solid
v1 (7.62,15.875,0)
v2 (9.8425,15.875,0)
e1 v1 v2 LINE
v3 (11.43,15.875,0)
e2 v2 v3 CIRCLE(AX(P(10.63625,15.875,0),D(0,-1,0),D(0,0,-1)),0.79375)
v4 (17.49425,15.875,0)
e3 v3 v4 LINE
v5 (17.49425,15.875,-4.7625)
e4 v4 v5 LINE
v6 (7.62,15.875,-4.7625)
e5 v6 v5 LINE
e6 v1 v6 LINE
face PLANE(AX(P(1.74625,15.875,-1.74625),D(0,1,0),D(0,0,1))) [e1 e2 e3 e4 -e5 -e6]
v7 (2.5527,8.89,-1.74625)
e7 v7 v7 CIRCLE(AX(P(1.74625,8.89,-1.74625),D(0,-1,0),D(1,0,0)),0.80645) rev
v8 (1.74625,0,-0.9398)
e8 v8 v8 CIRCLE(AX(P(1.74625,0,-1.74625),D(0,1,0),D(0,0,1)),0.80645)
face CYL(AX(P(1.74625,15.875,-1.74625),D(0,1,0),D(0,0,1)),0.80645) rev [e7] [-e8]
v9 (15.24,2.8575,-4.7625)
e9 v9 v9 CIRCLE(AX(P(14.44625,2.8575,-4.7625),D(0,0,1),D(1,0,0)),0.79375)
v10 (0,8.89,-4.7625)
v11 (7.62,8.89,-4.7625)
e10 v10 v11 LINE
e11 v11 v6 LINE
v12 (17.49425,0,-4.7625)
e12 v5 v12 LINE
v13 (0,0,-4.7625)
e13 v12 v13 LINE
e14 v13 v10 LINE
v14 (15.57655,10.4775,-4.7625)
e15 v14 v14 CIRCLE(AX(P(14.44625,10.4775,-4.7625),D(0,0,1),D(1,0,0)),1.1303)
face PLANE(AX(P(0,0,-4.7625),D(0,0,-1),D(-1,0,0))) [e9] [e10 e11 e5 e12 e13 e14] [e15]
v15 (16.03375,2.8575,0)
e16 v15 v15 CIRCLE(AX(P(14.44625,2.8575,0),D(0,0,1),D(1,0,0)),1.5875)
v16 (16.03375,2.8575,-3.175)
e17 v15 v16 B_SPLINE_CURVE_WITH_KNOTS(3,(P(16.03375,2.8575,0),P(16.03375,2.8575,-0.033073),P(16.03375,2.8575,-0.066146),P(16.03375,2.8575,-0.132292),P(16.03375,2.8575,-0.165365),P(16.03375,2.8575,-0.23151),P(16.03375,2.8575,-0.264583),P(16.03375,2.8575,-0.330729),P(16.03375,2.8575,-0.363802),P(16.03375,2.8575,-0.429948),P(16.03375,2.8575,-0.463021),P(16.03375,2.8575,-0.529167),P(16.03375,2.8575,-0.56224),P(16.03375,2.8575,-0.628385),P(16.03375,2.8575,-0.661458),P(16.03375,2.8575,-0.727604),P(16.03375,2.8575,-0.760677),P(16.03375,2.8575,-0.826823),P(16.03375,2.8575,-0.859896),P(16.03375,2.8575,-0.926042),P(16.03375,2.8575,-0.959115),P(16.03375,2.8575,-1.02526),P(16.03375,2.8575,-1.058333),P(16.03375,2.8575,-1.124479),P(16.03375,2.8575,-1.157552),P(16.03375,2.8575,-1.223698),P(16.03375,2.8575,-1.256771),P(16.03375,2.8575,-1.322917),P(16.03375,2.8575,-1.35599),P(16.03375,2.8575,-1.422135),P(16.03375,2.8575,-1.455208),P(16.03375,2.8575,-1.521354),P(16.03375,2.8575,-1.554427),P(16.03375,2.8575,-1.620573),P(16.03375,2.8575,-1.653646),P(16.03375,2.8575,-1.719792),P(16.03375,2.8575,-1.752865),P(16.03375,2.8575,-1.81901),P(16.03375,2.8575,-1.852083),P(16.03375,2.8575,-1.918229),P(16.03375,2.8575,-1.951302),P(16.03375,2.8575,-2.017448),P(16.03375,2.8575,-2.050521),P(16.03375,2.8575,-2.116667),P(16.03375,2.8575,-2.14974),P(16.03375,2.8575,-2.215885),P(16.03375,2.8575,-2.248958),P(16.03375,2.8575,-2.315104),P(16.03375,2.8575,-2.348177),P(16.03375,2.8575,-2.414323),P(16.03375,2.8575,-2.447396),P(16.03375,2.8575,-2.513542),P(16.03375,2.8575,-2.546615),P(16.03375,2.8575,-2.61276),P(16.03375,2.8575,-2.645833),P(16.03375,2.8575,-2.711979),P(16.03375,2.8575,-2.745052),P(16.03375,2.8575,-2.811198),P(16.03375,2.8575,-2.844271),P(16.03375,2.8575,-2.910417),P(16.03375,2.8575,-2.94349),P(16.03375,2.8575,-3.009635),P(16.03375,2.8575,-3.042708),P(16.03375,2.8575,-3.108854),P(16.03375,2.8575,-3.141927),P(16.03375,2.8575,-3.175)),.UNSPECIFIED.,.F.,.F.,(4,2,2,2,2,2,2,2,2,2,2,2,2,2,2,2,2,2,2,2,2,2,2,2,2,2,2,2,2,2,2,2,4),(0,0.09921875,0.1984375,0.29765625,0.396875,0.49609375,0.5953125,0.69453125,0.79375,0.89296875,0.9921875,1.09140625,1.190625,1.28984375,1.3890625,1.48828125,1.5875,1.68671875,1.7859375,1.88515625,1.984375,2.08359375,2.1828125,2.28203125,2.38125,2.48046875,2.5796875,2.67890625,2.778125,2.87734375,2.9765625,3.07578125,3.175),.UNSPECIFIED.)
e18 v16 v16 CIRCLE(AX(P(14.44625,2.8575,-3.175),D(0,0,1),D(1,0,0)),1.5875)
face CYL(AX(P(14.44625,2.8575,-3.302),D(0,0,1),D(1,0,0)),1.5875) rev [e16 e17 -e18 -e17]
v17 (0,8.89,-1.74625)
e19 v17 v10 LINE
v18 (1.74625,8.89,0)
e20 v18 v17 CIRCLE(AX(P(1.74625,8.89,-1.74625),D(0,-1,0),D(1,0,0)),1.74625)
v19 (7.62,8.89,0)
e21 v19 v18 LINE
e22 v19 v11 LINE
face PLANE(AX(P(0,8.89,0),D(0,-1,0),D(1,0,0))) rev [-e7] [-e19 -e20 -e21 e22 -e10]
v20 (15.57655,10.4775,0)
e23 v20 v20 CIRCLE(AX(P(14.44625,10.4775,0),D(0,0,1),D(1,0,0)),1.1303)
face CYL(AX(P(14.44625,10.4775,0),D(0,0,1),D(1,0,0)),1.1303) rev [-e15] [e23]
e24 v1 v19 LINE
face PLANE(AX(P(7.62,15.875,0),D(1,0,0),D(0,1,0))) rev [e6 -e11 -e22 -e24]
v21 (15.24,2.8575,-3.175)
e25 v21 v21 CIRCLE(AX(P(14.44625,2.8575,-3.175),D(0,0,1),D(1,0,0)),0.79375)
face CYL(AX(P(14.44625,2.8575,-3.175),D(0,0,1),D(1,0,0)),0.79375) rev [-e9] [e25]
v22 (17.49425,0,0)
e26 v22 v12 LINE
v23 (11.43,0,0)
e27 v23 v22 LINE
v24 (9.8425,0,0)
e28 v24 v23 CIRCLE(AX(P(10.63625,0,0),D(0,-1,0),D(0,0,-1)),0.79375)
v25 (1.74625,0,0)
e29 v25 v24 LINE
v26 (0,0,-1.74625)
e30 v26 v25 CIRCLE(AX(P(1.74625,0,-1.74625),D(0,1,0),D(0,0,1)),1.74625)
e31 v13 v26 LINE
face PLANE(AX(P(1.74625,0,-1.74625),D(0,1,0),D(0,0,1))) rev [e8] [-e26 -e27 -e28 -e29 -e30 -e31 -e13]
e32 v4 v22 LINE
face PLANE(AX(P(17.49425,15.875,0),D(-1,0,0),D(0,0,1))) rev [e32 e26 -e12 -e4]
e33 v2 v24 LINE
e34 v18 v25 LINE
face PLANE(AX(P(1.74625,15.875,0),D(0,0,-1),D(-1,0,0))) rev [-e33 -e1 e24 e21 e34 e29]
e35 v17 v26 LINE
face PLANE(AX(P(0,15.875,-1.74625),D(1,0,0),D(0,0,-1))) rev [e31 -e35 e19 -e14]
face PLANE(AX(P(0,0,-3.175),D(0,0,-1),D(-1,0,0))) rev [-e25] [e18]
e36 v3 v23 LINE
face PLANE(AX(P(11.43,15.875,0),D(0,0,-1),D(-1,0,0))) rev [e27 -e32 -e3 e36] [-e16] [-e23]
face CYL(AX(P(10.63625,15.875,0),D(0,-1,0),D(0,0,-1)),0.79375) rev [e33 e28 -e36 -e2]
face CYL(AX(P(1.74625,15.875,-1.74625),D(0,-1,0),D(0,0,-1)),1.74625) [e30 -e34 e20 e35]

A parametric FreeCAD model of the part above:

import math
import FreeCAD as App
import Part
import Sketcher
from FreeCAD import Vector
Q = App.Units.Quantity


def add_polygon(sketch, points):
    """Adds a closed chain of lines whose ends are joined by coincident constraints."""
    first, n = sketch.GeometryCount, len(points)
    for a, b in zip(points, points[1:] + points[:1]):
        sketch.addGeometry(Part.LineSegment(App.Vector(*a, 0), App.Vector(*b, 0)), False)
    for i in range(n):
        sketch.addConstraint(Sketcher.Constraint("Coincident", first + i, 2, first + (i + 1) % n, 1))

doc = App.newDocument("Part")
params = doc.addObject("Spreadsheet::Sheet", "Params")
for row, (alias, value) in enumerate([
    ("sketch1_radius", "0.03125 in"),
    ("sketch1_height", "0.125 in"),
    ("pad1_length", "0.625 in"),
    ("hole_diameter", "0.0635 in"),
    ("sketch3_width", "0.3 in"),
    ("sketch3_height", "0.275 in"),
    ("sketch4_diameter", "0.125 in"),
    ("pocket2_length", "0.13 in"),
    ("sketch5_width", "0.3 in"),
    ("sketch5_height", "0.35 in"),
    ("sketch5_height2", "0.275 in"),
    ("pad2_length", "0.0625 in"),
    ("sketch6_diameter", "0.089 in"),
    ("hole2_diameter", "0.089 in"),
    ("sketch7_diameter", "0.0625 in"),
    ("hole3_diameter", "0.0625 in"),
], start=1):
    params.set(f"A{row}", alias)
    params.set(f"B{row}", "=" + value)
    params.setAlias(f"B{row}", alias)

body = doc.addObject("PartDesign::Body", "Body")

# Sketch on XZ plane
sketch1 = body.newObject("Sketcher::SketchObject", "Sketch")
sketch1.AttachmentSupport = (doc.getObject("XZ_Plane"), [""])
sketch1.MapMode = "FlatFace"
sketch1.addGeometry(Part.LineSegment(Vector(0, -3.2, 0), Vector(0, -1.7, 0)), False)
sketch1.addGeometry(Part.ArcOfCircle(Part.Circle(Vector(1.7, -1.7, 0), Vector(0, 0, 1), 1.7), math.radians(90), math.radians(180)), False)
sketch1.addGeometry(Part.LineSegment(Vector(1.7, 0, 0), Vector(9.8, 0, 0)), False)
sketch1.addGeometry(Part.ArcOfCircle(Part.Circle(Vector(10.6, 0, 0), Vector(0, 0, 1), 0.8), math.radians(180), math.radians(360)), False)
sketch1.addGeometry(Part.LineSegment(Vector(11.4, 0, 0), Vector(17.5, 0, 0)), False)
sketch1.addGeometry(Part.LineSegment(Vector(17.5, 0, 0), Vector(17.5, -3.2, 0)), False)
sketch1.addGeometry(Part.LineSegment(Vector(17.5, -3.2, 0), Vector(0, -3.2, 0)), False)
sketch1.addConstraint(Sketcher.Constraint("Tangent", 0, 2, 1, 2))
sketch1.addConstraint(Sketcher.Constraint("Tangent", 1, 1, 2, 1))
sketch1.addConstraint(Sketcher.Constraint("Coincident", 2, 2, 3, 1))
sketch1.addConstraint(Sketcher.Constraint("Coincident", 3, 2, 4, 1))
sketch1.addConstraint(Sketcher.Constraint("Coincident", 4, 2, 5, 1))
sketch1.addConstraint(Sketcher.Constraint("Coincident", 5, 2, 6, 1))
sketch1.addConstraint(Sketcher.Constraint("Coincident", 6, 2, 0, 1))
sketch1.addConstraint(Sketcher.Constraint("Vertical", 0))
sketch1.addConstraint(Sketcher.Constraint("Horizontal", 2))
sketch1.addConstraint(Sketcher.Constraint("Horizontal", 4))
sketch1.addConstraint(Sketcher.Constraint("Vertical", 5))
sketch1.addConstraint(Sketcher.Constraint("Horizontal", 6))
sketch1.addConstraint(Sketcher.Constraint("PointOnObject", 3, 3, -1))
sketch1.addConstraint(Sketcher.Constraint("PointOnObject", 0, 2, -2))
sketch1.addConstraint(Sketcher.Constraint("PointOnObject", 1, 1, -1))
sketch1.addConstraint(Sketcher.Constraint("PointOnObject", 3, 2, -1))
sketch1.addConstraint(Sketcher.Constraint("Radius", 3, Q("0.03125 in")))
sketch1.addConstraint(Sketcher.Constraint("DistanceY", 5, 2, 5, 1, Q("0.125 in")))
sketch1.addConstraint(Sketcher.Constraint("DistanceX", -1, 1, 3, 2, Q("0.45 in")))
sketch1.addConstraint(Sketcher.Constraint("DistanceX", 1, 3, 3, 3, Q("0.35 in")))
sketch1.addConstraint(Sketcher.Constraint("DistanceX", 3, 3, 4, 2, Q("0.27 in")))
sketch1.setExpression("Constraints[16]", "Params.sketch1_radius")
sketch1.setExpression("Constraints[17]", "Params.sketch1_height")
pad1 = body.newObject("PartDesign::Pad", "Pad")
pad1.Profile = sketch1
pad1.setExpression("Length", "Params.pad1_length")
pad1.Reversed = True

# Sketch on XZ plane
sketch2 = body.newObject("Sketcher::SketchObject", "Sketch001")
sketch2.AttachmentSupport = (doc.getObject("XZ_Plane"), [""])
sketch2.MapMode = "FlatFace"
sketch2.AttachmentOffset = App.Placement(Vector(0, 0, -0.625 * 25.4), App.Rotation())
sketch2.addGeometry(Part.Circle(Vector(1.7, -1.7, 0), Vector(0, 0, 1), 0.8), False)
sketch2.addConstraint(Sketcher.Constraint("Diameter", 0, Q("0.0635 in")))
sketch2.addConstraint(Sketcher.Constraint("DistanceX", -1, 1, 0, 3, 1.74625))
sketch2.addConstraint(Sketcher.Constraint("DistanceY", 0, 3, -1, 1, 1.74625))
doc.recompute()
hole = body.newObject("PartDesign::Hole", "Hole")
hole.Profile = sketch2
hole.ThreadType = "None"
hole.setExpression("Diameter", "Params.hole_diameter")
hole.DepthType = "ThroughAll"
hole.Reversed = True

# Sketch on XY plane
sketch3 = body.newObject("Sketcher::SketchObject", "Sketch002")
sketch3.AttachmentSupport = (doc.getObject("XY_Plane"), [""])
sketch3.MapMode = "FlatFace"
sketch3.AttachmentOffset = App.Placement(Vector(0, 0, -0.125 * 25.4), App.Rotation())
add_polygon(sketch3, [(8, 16), (8, 9), (0, 9), (0, 16)])  # lines 0-3
sketch3.addConstraint(Sketcher.Constraint("Vertical", 0))
sketch3.addConstraint(Sketcher.Constraint("Horizontal", 1))
sketch3.addConstraint(Sketcher.Constraint("Vertical", 2))
sketch3.addConstraint(Sketcher.Constraint("Horizontal", 3))
sketch3.addConstraint(Sketcher.Constraint("PointOnObject", 1, 2, -2))
sketch3.addConstraint(Sketcher.Constraint("DistanceX", 1, 2, 1, 1, Q("0.3 in")))
sketch3.addConstraint(Sketcher.Constraint("DistanceY", 0, 2, 0, 1, Q("0.275 in")))
sketch3.addConstraint(Sketcher.Constraint("DistanceY", -1, 1, 0, 2, Q("0.35 in")))
sketch3.setExpression("Constraints[9]", "Params.sketch3_width")
sketch3.setExpression("Constraints[10]", "Params.sketch3_height")
pocket1 = body.newObject("PartDesign::Pocket", "Pocket")
pocket1.Profile = sketch3
pocket1.Type = "ThroughAll"
pocket1.Reversed = True

# Sketch on XY plane
sketch4 = body.newObject("Sketcher::SketchObject", "Sketch003")
sketch4.AttachmentSupport = (doc.getObject("XY_Plane"), [""])
sketch4.MapMode = "FlatFace"
sketch4.addGeometry(Part.Circle(Vector(14.4, 2.9, 0), Vector(0, 0, 1), 1.6), False)
sketch4.addConstraint(Sketcher.Constraint("Diameter", 0, Q("0.125 in")))
sketch4.addConstraint(Sketcher.Constraint("DistanceY", -1, 1, 0, 3, Q("0.1125 in")))
sketch4.addConstraint(Sketcher.Constraint("DistanceX", -1, 1, 0, 3, 14.44625))
sketch4.setExpression("Constraints[0]", "Params.sketch4_diameter")
pocket2 = body.newObject("PartDesign::Pocket", "Pocket001")
pocket2.Profile = sketch4
pocket2.setExpression("Length", "Params.pocket2_length")

# Sketch on XY plane
sketch5 = body.newObject("Sketcher::SketchObject", "Sketch004")
sketch5.AttachmentSupport = (doc.getObject("XY_Plane"), [""])
sketch5.MapMode = "FlatFace"
sketch5.AttachmentOffset = App.Placement(Vector(0, 0, -0.125 * 25.4), App.Rotation())
add_polygon(sketch5, [(17, 0), (0, 0), (0, 9), (8, 9), (8, 16), (17, 16)])  # lines 0-5
sketch5.addConstraint(Sketcher.Constraint("Horizontal", 0))
sketch5.addConstraint(Sketcher.Constraint("Vertical", 1))
sketch5.addConstraint(Sketcher.Constraint("Horizontal", 2))
sketch5.addConstraint(Sketcher.Constraint("Vertical", 3))
sketch5.addConstraint(Sketcher.Constraint("Horizontal", 4))
sketch5.addConstraint(Sketcher.Constraint("Vertical", 5))
sketch5.addConstraint(Sketcher.Constraint("Coincident", 0, 2, -1, 1))
sketch5.addConstraint(Sketcher.Constraint("DistanceX", 2, 1, 2, 2, Q("0.3 in")))
sketch5.addConstraint(Sketcher.Constraint("DistanceY", 1, 1, 1, 2, Q("0.35 in")))
sketch5.addConstraint(Sketcher.Constraint("DistanceY", 3, 1, 3, 2, Q("0.275 in")))
sketch5.addConstraint(Sketcher.Constraint("DistanceX", 0, 2, 0, 1, 17.49425))
sketch5.setExpression("Constraints[13]", "Params.sketch5_width")
sketch5.setExpression("Constraints[14]", "Params.sketch5_height")
sketch5.setExpression("Constraints[15]", "Params.sketch5_height2")
pad2 = body.newObject("PartDesign::Pad", "Pad001")
pad2.Profile = sketch5
pad2.setExpression("Length", "Params.pad2_length")
pad2.Reversed = True

# Sketch on XY plane
sketch6 = body.newObject("Sketcher::SketchObject", "Sketch005")
sketch6.AttachmentSupport = (doc.getObject("XY_Plane"), [""])
sketch6.MapMode = "FlatFace"
sketch6.addGeometry(Part.Circle(Vector(14.4, 10.5, 0), Vector(0, 0, 1), 1.1), False)
sketch6.addConstraint(Sketcher.Constraint("Diameter", 0, Q("0.089 in")))
sketch6.addConstraint(Sketcher.Constraint("DistanceY", -1, 1, 0, 3, Q("0.4125 in")))
sketch6.addConstraint(Sketcher.Constraint("DistanceX", -1, 1, 0, 3, 14.44625))
sketch6.setExpression("Constraints[0]", "Params.sketch6_diameter")
doc.recompute()
hole2 = body.newObject("PartDesign::Hole", "Hole001")
hole2.Profile = sketch6
hole2.ThreadType = "None"
hole2.setExpression("Diameter", "Params.hole2_diameter")
hole2.DepthType = "ThroughAll"

# Sketch on XY plane
sketch7 = body.newObject("Sketcher::SketchObject", "Sketch006")
sketch7.AttachmentSupport = (doc.getObject("XY_Plane"), [""])
sketch7.MapMode = "FlatFace"
sketch7.AttachmentOffset = App.Placement(Vector(0, 0, -0.125 * 25.4), App.Rotation())
sketch7.addGeometry(Part.Circle(Vector(14.4, 2.9, 0), Vector(0, 0, 1), 0.8), False)
sketch7.addConstraint(Sketcher.Constraint("Diameter", 0, Q("0.0625 in")))
sketch7.addConstraint(Sketcher.Constraint("DistanceY", -1, 1, 0, 3, Q("0.1125 in")))
sketch7.addConstraint(Sketcher.Constraint("DistanceX", -1, 1, 0, 3, 14.44625))
sketch7.setExpression("Constraints[0]", "Params.sketch7_diameter")
doc.recompute()
hole3 = body.newObject("PartDesign::Hole", "Hole002")
hole3.Profile = sketch7
hole3.ThreadType = "None"
hole3.setExpression("Diameter", "Params.hole3_diameter")
hole3.DepthType = "ThroughAll"

doc.recompute()
